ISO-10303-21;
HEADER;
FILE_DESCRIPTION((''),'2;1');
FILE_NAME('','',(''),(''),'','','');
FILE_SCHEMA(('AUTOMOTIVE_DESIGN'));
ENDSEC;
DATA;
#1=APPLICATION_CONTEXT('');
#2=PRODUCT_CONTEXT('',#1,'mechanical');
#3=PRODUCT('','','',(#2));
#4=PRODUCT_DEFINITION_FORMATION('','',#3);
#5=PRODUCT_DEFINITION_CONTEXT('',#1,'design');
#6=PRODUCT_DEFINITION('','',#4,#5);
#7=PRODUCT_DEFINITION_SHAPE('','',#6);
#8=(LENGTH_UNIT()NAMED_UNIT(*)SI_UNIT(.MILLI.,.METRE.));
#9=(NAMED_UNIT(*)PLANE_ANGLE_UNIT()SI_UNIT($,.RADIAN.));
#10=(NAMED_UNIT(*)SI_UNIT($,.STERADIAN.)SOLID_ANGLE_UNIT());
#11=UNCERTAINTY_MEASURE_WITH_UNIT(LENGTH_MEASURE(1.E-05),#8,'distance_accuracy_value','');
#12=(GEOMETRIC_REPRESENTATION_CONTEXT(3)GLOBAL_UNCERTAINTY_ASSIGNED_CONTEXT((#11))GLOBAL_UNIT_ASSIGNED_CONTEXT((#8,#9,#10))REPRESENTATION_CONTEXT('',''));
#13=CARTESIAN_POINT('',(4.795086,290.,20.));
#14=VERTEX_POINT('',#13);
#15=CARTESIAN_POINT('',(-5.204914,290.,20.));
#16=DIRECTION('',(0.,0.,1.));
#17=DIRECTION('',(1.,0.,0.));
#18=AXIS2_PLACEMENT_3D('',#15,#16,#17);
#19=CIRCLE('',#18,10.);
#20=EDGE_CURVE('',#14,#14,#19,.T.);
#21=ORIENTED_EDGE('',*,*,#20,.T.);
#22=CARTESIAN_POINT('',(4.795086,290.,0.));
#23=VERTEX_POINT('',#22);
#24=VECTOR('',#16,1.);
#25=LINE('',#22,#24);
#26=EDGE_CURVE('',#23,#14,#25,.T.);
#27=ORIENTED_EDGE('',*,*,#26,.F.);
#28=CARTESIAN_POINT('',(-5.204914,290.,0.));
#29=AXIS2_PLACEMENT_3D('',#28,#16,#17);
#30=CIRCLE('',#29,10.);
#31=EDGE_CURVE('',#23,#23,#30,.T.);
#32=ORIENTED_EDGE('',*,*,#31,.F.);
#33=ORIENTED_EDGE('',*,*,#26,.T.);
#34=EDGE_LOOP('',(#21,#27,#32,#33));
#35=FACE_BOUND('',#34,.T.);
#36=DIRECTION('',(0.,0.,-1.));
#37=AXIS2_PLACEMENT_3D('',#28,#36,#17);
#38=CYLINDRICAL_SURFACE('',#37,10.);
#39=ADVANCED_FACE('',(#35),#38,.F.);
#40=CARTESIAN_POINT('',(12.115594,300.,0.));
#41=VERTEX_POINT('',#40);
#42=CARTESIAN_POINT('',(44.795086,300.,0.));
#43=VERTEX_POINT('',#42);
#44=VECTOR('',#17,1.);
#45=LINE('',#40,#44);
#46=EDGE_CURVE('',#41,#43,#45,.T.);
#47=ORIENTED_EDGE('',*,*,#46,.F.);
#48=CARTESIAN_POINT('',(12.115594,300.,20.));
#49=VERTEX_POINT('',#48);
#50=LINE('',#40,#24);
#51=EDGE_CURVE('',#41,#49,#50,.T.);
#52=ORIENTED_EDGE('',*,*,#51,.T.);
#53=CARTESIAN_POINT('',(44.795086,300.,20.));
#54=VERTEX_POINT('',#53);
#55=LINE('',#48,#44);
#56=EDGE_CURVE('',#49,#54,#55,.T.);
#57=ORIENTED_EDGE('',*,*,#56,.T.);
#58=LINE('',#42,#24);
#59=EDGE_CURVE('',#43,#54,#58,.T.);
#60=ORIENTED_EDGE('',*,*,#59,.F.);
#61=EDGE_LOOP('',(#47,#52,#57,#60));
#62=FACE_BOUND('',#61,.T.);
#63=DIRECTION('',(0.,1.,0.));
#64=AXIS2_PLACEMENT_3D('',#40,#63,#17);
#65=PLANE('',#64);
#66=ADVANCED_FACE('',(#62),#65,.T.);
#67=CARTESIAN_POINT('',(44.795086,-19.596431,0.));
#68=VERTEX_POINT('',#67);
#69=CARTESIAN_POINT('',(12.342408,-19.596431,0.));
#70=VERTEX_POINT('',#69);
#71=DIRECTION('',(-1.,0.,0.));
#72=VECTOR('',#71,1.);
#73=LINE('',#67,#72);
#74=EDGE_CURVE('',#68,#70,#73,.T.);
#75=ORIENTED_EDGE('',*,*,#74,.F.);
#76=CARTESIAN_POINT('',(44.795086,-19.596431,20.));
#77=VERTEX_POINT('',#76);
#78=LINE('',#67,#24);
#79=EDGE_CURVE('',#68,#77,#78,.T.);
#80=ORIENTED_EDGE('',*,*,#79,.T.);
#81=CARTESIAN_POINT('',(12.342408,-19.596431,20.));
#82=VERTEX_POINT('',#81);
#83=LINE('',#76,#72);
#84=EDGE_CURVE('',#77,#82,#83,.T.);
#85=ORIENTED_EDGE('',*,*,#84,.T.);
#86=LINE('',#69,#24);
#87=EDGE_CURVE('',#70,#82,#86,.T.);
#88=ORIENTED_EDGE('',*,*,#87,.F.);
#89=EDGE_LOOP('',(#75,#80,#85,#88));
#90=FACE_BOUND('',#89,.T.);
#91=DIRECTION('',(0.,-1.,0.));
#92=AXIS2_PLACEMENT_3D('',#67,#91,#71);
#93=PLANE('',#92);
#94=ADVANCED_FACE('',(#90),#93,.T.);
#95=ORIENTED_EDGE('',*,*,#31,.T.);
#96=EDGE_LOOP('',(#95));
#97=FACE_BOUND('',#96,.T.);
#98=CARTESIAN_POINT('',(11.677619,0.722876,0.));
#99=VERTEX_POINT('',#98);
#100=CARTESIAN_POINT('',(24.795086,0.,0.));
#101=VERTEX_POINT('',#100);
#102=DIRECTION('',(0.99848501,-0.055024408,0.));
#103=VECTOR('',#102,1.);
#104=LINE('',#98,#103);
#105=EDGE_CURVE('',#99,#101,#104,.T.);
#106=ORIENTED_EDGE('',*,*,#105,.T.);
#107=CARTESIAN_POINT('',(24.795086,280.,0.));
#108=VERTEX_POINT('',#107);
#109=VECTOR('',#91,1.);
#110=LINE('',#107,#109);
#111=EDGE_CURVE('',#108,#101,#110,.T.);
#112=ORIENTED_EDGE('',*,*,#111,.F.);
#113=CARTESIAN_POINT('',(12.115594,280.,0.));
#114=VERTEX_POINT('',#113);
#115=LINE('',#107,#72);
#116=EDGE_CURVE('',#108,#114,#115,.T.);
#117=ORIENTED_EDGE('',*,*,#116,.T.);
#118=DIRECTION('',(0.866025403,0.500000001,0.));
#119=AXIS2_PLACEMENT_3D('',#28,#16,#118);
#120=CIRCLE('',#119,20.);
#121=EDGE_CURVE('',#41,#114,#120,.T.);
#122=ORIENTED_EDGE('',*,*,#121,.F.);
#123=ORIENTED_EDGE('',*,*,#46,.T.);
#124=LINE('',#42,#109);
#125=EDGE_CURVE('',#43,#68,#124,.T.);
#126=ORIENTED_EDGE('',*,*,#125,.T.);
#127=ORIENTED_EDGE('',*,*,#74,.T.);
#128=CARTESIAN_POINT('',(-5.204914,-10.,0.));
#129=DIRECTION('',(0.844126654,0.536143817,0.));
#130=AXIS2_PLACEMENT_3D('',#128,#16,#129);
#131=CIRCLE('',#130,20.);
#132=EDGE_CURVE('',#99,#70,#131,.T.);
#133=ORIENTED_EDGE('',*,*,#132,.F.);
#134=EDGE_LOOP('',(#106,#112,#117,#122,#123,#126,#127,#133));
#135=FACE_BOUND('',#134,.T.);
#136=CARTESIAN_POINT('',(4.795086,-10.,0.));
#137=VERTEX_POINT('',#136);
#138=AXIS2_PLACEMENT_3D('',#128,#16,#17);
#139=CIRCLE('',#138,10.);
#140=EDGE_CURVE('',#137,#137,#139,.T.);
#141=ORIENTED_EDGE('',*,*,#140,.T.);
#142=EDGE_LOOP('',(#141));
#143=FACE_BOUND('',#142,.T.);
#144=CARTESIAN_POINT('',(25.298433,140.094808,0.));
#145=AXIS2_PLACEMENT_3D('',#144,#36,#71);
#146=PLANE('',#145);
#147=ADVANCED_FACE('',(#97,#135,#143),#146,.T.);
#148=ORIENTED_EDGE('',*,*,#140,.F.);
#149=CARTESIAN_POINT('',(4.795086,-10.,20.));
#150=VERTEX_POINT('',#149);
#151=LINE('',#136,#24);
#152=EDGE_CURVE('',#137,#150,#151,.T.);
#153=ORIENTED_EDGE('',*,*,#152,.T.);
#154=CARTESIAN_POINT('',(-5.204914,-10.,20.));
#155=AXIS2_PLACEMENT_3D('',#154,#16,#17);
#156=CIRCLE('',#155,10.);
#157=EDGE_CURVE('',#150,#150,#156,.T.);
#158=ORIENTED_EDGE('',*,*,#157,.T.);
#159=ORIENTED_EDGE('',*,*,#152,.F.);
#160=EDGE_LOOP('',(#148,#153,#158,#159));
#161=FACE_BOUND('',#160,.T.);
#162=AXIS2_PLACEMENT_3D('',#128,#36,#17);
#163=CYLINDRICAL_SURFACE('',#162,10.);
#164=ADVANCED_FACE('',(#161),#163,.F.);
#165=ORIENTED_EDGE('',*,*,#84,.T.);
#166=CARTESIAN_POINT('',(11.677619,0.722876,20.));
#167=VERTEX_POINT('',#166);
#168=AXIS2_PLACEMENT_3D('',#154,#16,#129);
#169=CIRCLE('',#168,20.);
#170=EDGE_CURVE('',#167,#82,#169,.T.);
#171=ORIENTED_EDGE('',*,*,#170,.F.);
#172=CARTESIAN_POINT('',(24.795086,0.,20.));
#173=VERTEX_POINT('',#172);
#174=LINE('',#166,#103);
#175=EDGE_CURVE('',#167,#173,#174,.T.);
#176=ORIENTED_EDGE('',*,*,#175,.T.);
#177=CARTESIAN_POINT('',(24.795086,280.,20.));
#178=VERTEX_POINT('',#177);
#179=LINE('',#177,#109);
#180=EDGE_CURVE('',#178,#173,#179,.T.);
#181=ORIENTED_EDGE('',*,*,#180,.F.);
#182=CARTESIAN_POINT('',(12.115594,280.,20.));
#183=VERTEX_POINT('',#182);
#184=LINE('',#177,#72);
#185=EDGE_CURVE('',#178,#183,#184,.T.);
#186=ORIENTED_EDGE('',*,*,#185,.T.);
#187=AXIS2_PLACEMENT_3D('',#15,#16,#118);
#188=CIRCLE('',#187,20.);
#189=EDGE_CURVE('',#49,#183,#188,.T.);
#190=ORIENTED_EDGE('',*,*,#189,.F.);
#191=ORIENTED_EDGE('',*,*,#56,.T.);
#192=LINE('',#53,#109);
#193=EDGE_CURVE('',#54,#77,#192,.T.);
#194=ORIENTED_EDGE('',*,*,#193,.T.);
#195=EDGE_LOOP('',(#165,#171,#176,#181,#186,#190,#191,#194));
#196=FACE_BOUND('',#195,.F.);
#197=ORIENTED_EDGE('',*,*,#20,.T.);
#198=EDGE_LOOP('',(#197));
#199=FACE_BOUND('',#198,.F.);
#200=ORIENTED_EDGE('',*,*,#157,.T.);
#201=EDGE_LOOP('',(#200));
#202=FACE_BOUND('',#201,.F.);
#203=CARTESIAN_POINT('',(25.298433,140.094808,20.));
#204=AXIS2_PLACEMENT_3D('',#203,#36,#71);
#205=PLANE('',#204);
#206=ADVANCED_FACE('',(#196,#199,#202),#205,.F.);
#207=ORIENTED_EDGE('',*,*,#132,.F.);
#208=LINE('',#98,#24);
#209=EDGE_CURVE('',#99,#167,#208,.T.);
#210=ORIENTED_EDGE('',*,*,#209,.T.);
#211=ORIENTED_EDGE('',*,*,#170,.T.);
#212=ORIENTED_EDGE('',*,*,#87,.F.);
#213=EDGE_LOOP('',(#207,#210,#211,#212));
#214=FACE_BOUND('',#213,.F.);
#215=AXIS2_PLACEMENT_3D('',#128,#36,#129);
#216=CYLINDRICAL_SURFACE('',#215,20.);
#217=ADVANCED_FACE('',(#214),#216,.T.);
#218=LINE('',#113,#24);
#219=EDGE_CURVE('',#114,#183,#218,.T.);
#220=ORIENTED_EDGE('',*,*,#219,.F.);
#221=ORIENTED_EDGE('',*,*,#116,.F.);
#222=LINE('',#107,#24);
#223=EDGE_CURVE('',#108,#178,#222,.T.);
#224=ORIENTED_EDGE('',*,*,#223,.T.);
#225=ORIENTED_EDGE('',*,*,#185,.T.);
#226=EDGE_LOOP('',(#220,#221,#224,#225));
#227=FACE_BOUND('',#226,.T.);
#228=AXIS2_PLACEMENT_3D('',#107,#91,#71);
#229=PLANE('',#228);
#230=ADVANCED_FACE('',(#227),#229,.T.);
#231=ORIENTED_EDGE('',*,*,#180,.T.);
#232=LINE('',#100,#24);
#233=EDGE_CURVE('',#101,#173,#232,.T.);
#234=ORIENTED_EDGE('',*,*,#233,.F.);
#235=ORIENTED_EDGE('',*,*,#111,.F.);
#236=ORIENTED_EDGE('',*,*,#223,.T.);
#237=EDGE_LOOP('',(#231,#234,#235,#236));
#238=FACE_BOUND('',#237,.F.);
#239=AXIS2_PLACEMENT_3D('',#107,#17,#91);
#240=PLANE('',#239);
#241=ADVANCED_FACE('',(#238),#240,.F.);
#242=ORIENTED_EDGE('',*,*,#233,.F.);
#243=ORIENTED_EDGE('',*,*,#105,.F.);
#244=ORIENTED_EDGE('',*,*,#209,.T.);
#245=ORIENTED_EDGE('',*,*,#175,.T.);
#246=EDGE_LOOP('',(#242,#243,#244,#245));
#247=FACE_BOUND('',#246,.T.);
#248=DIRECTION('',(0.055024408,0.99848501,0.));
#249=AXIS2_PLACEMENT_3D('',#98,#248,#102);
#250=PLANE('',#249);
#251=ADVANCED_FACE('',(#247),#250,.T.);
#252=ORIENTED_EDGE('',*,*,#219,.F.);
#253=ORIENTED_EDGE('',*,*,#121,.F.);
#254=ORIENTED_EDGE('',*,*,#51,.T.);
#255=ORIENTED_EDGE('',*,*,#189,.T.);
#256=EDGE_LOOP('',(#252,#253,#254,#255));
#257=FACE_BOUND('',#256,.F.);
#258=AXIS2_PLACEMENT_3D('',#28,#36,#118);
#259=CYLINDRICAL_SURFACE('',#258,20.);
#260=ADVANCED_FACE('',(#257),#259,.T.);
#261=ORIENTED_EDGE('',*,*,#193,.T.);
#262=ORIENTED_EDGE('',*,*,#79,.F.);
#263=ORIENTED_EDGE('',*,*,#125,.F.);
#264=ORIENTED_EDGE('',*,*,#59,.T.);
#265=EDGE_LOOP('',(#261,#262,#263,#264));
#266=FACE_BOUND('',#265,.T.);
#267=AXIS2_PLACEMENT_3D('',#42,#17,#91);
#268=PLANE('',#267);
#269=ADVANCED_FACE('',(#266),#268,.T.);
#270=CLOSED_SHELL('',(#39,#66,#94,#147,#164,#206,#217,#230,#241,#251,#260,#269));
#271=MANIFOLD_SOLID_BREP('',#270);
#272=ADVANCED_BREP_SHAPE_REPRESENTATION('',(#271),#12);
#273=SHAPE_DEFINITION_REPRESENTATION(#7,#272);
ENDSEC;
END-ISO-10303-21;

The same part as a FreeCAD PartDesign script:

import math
import FreeCAD as App
import Part
import Sketcher

doc = App.newDocument("Part")
params = doc.addObject("Spreadsheet::Sheet", "Params")
for row, (alias, value) in enumerate([
    ("sketch1_diameter", "20 mm"),
    ("sketch1_radius", "20 mm"),
    ("sketch1_height", "280 mm"),
    ("pad1_length", "20 mm"),
], start=1):
    params.set(f"A{row}", alias)
    params.set(f"B{row}", "=" + value)
    params.setAlias(f"B{row}", alias)

body = doc.addObject("PartDesign::Body", "Body")

# Sketch on XY plane
sketch1 = doc.addObject("Sketcher::SketchObject", "Sketch")
body.addObject(sketch1)
sketch1.AttachmentSupport = (doc.XY_Plane, [""])
sketch1.MapMode = "FlatFace"
sketch1.addGeometry(Part.LineSegment(App.Vector(25, 0, 0), App.Vector(12, 1, 0)), False)
sketch1.addGeometry(Part.ArcOfCircle(Part.Circle(App.Vector(-5, -10, 0), App.Vector(0, 0, 1), 20), math.radians(32), math.radians(331)), False)
sketch1.addGeometry(Part.LineSegment(App.Vector(12, -20, 0), App.Vector(45, -20, 0)), False)
sketch1.addGeometry(Part.LineSegment(App.Vector(45, -20, 0), App.Vector(45, 300, 0)), False)
sketch1.addGeometry(Part.LineSegment(App.Vector(45, 300, 0), App.Vector(12, 300, 0)), False)
sketch1.addGeometry(Part.ArcOfCircle(Part.Circle(App.Vector(-5, 290, 0), App.Vector(0, 0, 1), 20), math.radians(30), math.radians(330)), False)
sketch1.addGeometry(Part.LineSegment(App.Vector(12, 280, 0), App.Vector(25, 280, 0)), False)
sketch1.addGeometry(Part.LineSegment(App.Vector(25, 280, 0), App.Vector(25, 0, 0)), False)
sketch1.addGeometry(Part.Circle(App.Vector(-5, -10, 0), App.Vector(0, 0, 1), 10), False)
sketch1.addGeometry(Part.Circle(App.Vector(-5, 290, 0), App.Vector(0, 0, 1), 10), False)
sketch1.addConstraint(Sketcher.Constraint("Coincident", 0, 2, 1, 1))
sketch1.addConstraint(Sketcher.Constraint("Coincident", 1, 2, 2, 1))
sketch1.addConstraint(Sketcher.Constraint("Coincident", 2, 2, 3, 1))
sketch1.addConstraint(Sketcher.Constraint("Coincident", 3, 2, 4, 1))
sketch1.addConstraint(Sketcher.Constraint("Coincident", 4, 2, 5, 1))
sketch1.addConstraint(Sketcher.Constraint("Coincident", 5, 2, 6, 1))
sketch1.addConstraint(Sketcher.Constraint("Coincident", 6, 2, 7, 1))
sketch1.addConstraint(Sketcher.Constraint("Coincident", 7, 2, 0, 1))
sketch1.addConstraint(Sketcher.Constraint("Horizontal", 2))
sketch1.addConstraint(Sketcher.Constraint("Vertical", 3))
sketch1.addConstraint(Sketcher.Constraint("Horizontal", 4))
sketch1.addConstraint(Sketcher.Constraint("Horizontal", 6))
sketch1.addConstraint(Sketcher.Constraint("Vertical", 7))
sketch1.addConstraint(Sketcher.Constraint("Coincident", 8, 3, 1, 3))
sketch1.addConstraint(Sketcher.Constraint("Coincident", 9, 3, 5, 3))
sketch1.addConstraint(Sketcher.Constraint("Equal", 1, 5))
sketch1.addConstraint(Sketcher.Constraint("Equal", 8, 9))
sketch1.addConstraint(Sketcher.Constraint("PointOnObject", 7, 2, -1))
sketch1.addConstraint(Sketcher.Constraint("Vertical", 1, 3, 5, 3))
sketch1.addConstraint(Sketcher.Constraint("Vertical", 4, 2, 5, 2))
sketch1.addConstraint(Sketcher.Constraint("Diameter", 8, 20.0))
sketch1.addConstraint(Sketcher.Constraint("Radius", 1, 20.0))
sketch1.addConstraint(Sketcher.Constraint("DistanceY", 7, 2, 7, 1, 280.0))
sketch1.addConstraint(Sketcher.Constraint("DistanceY", 1, 3, -1, 1, 10.0))
sketch1.addConstraint(Sketcher.Constraint("DistanceY", -1, 1, 5, 3, 290.0))
sketch1.addConstraint(Sketcher.Constraint("DistanceX", 1, 3, 2, 2, 50.0))
sketch1.addConstraint(Sketcher.Constraint("DistanceX", 6, 2, 3, 2, 20.0))
sketch1.addConstraint(Sketcher.Constraint("DistanceY", 3, 1, 3, 2, 319.596431))
sketch1.addConstraint(Sketcher.Constraint("Distance", 0, 13.13737))
sketch1.addConstraint(Sketcher.Constraint("DistanceX", -1, 1, 0, 2, 11.677619))
sketch1.setExpression("Constraints[20]", "Params.sketch1_diameter")
sketch1.setExpression("Constraints[21]", "Params.sketch1_radius")
sketch1.setExpression("Constraints[22]", "Params.sketch1_height")
pad1 = doc.addObject("PartDesign::Pad", "Pad")
body.addObject(pad1)
pad1.Profile = sketch1
pad1.setExpression("Length", "Params.pad1_length")

doc.recompute()
